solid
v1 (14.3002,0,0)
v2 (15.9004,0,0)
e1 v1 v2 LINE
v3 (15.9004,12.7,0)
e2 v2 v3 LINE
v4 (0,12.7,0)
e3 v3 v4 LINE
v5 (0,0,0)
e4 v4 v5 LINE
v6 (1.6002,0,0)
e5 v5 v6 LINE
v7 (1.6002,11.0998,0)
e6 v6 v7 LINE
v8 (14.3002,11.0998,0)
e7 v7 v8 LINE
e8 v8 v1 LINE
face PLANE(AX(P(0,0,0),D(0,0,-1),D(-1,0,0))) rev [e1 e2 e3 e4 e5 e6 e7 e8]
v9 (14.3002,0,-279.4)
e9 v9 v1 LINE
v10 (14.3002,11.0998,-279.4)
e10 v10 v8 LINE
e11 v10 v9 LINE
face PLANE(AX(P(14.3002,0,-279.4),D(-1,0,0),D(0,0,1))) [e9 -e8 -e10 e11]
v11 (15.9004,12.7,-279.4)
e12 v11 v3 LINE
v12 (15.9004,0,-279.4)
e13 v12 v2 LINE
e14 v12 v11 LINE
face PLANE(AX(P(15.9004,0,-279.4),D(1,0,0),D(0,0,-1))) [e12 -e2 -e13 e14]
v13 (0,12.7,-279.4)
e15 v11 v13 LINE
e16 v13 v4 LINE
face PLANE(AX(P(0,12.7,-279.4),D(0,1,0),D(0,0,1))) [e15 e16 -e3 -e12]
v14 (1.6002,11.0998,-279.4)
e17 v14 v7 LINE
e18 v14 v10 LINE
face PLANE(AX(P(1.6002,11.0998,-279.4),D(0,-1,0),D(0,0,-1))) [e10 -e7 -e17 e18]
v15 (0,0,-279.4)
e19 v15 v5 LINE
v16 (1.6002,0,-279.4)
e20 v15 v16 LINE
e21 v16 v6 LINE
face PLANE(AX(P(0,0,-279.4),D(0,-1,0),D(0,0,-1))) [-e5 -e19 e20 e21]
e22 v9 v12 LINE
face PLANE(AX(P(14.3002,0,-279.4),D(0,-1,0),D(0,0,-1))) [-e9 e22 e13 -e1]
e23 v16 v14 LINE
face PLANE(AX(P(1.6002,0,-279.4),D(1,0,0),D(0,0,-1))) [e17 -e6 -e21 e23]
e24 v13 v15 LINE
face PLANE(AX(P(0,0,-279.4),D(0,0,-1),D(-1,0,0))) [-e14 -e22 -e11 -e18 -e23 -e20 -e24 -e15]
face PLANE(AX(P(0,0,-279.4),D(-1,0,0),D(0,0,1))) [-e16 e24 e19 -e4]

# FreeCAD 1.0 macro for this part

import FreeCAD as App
import Part
import Sketcher
Q = App.Units.Quantity

doc = App.newDocument("Part")
body = doc.addObject("PartDesign::Body", "Body")

# Sketch on XY plane
sketch1 = body.newObject("Sketcher::SketchObject", "Sketch")
sketch1.AttachmentSupport = (doc.getObject("XY_Plane"), [""])
sketch1.MapMode = "FlatFace"
sketch1.addGeometry([
    Part.LineSegment(App.Vector(14.3, 0, 0), App.Vector(15.9, 0, 0)),  # 0
    Part.LineSegment(App.Vector(15.9, 0, 0), App.Vector(15.9, 12.7, 0)),  # 1
    Part.LineSegment(App.Vector(15.9, 12.7, 0), App.Vector(0, 12.7, 0)),  # 2
    Part.LineSegment(App.Vector(0, 12.7, 0), App.Vector(0, 0, 0)),  # 3
    Part.LineSegment(App.Vector(0, 0, 0), App.Vector(1.6, 0, 0)),  # 4
    Part.LineSegment(App.Vector(1.6, 0, 0), App.Vector(1.6, 11.1, 0)),  # 5
    Part.LineSegment(App.Vector(1.6, 11.1, 0), App.Vector(14.3, 11.1, 0)),  # 6
    Part.LineSegment(App.Vector(14.3, 11.1, 0), App.Vector(14.3, 0, 0)),  # 7
], False)
sketch1.addConstraint([
    Sketcher.Constraint("Coincident", 0, 2, 1, 1),
    Sketcher.Constraint("Coincident", 1, 2, 2, 1),
    Sketcher.Constraint("Coincident", 2, 2, 3, 1),
    Sketcher.Constraint("Coincident", 3, 2, 4, 1),
    Sketcher.Constraint("Coincident", 4, 2, 5, 1),
    Sketcher.Constraint("Coincident", 5, 2, 6, 1),
    Sketcher.Constraint("Coincident", 6, 2, 7, 1),
    Sketcher.Constraint("Coincident", 7, 2, 0, 1),
    Sketcher.Constraint("Horizontal", 0),
    Sketcher.Constraint("Vertical", 1),
    Sketcher.Constraint("Horizontal", 2),
    Sketcher.Constraint("Vertical", 3),
    Sketcher.Constraint("Horizontal", 4),
    Sketcher.Constraint("Vertical", 5),
    Sketcher.Constraint("Horizontal", 6),
    Sketcher.Constraint("Vertical", 7),
    Sketcher.Constraint("Coincident", 3, 2, -1, 1),
    Sketcher.Constraint("PointOnObject", 0, 2, -1),
    Sketcher.Constraint("Equal", 0, 4),
    Sketcher.Constraint("Equal", 6, 1),
    Sketcher.Constraint("DistanceX", 6, 1, 6, 2, Q("0.5 in")),
    Sketcher.Constraint("DistanceX", 0, 1, 0, 2, Q("0.063 in")),
    Sketcher.Constraint("DistanceY", 5, 1, 5, 2, Q("0.437 in")),
])
pad1 = body.newObject("PartDesign::Pad", "Pad")
pad1.Profile = sketch1
pad1.Length = Q("11 in")
pad1.Reversed = True

doc.recompute()
